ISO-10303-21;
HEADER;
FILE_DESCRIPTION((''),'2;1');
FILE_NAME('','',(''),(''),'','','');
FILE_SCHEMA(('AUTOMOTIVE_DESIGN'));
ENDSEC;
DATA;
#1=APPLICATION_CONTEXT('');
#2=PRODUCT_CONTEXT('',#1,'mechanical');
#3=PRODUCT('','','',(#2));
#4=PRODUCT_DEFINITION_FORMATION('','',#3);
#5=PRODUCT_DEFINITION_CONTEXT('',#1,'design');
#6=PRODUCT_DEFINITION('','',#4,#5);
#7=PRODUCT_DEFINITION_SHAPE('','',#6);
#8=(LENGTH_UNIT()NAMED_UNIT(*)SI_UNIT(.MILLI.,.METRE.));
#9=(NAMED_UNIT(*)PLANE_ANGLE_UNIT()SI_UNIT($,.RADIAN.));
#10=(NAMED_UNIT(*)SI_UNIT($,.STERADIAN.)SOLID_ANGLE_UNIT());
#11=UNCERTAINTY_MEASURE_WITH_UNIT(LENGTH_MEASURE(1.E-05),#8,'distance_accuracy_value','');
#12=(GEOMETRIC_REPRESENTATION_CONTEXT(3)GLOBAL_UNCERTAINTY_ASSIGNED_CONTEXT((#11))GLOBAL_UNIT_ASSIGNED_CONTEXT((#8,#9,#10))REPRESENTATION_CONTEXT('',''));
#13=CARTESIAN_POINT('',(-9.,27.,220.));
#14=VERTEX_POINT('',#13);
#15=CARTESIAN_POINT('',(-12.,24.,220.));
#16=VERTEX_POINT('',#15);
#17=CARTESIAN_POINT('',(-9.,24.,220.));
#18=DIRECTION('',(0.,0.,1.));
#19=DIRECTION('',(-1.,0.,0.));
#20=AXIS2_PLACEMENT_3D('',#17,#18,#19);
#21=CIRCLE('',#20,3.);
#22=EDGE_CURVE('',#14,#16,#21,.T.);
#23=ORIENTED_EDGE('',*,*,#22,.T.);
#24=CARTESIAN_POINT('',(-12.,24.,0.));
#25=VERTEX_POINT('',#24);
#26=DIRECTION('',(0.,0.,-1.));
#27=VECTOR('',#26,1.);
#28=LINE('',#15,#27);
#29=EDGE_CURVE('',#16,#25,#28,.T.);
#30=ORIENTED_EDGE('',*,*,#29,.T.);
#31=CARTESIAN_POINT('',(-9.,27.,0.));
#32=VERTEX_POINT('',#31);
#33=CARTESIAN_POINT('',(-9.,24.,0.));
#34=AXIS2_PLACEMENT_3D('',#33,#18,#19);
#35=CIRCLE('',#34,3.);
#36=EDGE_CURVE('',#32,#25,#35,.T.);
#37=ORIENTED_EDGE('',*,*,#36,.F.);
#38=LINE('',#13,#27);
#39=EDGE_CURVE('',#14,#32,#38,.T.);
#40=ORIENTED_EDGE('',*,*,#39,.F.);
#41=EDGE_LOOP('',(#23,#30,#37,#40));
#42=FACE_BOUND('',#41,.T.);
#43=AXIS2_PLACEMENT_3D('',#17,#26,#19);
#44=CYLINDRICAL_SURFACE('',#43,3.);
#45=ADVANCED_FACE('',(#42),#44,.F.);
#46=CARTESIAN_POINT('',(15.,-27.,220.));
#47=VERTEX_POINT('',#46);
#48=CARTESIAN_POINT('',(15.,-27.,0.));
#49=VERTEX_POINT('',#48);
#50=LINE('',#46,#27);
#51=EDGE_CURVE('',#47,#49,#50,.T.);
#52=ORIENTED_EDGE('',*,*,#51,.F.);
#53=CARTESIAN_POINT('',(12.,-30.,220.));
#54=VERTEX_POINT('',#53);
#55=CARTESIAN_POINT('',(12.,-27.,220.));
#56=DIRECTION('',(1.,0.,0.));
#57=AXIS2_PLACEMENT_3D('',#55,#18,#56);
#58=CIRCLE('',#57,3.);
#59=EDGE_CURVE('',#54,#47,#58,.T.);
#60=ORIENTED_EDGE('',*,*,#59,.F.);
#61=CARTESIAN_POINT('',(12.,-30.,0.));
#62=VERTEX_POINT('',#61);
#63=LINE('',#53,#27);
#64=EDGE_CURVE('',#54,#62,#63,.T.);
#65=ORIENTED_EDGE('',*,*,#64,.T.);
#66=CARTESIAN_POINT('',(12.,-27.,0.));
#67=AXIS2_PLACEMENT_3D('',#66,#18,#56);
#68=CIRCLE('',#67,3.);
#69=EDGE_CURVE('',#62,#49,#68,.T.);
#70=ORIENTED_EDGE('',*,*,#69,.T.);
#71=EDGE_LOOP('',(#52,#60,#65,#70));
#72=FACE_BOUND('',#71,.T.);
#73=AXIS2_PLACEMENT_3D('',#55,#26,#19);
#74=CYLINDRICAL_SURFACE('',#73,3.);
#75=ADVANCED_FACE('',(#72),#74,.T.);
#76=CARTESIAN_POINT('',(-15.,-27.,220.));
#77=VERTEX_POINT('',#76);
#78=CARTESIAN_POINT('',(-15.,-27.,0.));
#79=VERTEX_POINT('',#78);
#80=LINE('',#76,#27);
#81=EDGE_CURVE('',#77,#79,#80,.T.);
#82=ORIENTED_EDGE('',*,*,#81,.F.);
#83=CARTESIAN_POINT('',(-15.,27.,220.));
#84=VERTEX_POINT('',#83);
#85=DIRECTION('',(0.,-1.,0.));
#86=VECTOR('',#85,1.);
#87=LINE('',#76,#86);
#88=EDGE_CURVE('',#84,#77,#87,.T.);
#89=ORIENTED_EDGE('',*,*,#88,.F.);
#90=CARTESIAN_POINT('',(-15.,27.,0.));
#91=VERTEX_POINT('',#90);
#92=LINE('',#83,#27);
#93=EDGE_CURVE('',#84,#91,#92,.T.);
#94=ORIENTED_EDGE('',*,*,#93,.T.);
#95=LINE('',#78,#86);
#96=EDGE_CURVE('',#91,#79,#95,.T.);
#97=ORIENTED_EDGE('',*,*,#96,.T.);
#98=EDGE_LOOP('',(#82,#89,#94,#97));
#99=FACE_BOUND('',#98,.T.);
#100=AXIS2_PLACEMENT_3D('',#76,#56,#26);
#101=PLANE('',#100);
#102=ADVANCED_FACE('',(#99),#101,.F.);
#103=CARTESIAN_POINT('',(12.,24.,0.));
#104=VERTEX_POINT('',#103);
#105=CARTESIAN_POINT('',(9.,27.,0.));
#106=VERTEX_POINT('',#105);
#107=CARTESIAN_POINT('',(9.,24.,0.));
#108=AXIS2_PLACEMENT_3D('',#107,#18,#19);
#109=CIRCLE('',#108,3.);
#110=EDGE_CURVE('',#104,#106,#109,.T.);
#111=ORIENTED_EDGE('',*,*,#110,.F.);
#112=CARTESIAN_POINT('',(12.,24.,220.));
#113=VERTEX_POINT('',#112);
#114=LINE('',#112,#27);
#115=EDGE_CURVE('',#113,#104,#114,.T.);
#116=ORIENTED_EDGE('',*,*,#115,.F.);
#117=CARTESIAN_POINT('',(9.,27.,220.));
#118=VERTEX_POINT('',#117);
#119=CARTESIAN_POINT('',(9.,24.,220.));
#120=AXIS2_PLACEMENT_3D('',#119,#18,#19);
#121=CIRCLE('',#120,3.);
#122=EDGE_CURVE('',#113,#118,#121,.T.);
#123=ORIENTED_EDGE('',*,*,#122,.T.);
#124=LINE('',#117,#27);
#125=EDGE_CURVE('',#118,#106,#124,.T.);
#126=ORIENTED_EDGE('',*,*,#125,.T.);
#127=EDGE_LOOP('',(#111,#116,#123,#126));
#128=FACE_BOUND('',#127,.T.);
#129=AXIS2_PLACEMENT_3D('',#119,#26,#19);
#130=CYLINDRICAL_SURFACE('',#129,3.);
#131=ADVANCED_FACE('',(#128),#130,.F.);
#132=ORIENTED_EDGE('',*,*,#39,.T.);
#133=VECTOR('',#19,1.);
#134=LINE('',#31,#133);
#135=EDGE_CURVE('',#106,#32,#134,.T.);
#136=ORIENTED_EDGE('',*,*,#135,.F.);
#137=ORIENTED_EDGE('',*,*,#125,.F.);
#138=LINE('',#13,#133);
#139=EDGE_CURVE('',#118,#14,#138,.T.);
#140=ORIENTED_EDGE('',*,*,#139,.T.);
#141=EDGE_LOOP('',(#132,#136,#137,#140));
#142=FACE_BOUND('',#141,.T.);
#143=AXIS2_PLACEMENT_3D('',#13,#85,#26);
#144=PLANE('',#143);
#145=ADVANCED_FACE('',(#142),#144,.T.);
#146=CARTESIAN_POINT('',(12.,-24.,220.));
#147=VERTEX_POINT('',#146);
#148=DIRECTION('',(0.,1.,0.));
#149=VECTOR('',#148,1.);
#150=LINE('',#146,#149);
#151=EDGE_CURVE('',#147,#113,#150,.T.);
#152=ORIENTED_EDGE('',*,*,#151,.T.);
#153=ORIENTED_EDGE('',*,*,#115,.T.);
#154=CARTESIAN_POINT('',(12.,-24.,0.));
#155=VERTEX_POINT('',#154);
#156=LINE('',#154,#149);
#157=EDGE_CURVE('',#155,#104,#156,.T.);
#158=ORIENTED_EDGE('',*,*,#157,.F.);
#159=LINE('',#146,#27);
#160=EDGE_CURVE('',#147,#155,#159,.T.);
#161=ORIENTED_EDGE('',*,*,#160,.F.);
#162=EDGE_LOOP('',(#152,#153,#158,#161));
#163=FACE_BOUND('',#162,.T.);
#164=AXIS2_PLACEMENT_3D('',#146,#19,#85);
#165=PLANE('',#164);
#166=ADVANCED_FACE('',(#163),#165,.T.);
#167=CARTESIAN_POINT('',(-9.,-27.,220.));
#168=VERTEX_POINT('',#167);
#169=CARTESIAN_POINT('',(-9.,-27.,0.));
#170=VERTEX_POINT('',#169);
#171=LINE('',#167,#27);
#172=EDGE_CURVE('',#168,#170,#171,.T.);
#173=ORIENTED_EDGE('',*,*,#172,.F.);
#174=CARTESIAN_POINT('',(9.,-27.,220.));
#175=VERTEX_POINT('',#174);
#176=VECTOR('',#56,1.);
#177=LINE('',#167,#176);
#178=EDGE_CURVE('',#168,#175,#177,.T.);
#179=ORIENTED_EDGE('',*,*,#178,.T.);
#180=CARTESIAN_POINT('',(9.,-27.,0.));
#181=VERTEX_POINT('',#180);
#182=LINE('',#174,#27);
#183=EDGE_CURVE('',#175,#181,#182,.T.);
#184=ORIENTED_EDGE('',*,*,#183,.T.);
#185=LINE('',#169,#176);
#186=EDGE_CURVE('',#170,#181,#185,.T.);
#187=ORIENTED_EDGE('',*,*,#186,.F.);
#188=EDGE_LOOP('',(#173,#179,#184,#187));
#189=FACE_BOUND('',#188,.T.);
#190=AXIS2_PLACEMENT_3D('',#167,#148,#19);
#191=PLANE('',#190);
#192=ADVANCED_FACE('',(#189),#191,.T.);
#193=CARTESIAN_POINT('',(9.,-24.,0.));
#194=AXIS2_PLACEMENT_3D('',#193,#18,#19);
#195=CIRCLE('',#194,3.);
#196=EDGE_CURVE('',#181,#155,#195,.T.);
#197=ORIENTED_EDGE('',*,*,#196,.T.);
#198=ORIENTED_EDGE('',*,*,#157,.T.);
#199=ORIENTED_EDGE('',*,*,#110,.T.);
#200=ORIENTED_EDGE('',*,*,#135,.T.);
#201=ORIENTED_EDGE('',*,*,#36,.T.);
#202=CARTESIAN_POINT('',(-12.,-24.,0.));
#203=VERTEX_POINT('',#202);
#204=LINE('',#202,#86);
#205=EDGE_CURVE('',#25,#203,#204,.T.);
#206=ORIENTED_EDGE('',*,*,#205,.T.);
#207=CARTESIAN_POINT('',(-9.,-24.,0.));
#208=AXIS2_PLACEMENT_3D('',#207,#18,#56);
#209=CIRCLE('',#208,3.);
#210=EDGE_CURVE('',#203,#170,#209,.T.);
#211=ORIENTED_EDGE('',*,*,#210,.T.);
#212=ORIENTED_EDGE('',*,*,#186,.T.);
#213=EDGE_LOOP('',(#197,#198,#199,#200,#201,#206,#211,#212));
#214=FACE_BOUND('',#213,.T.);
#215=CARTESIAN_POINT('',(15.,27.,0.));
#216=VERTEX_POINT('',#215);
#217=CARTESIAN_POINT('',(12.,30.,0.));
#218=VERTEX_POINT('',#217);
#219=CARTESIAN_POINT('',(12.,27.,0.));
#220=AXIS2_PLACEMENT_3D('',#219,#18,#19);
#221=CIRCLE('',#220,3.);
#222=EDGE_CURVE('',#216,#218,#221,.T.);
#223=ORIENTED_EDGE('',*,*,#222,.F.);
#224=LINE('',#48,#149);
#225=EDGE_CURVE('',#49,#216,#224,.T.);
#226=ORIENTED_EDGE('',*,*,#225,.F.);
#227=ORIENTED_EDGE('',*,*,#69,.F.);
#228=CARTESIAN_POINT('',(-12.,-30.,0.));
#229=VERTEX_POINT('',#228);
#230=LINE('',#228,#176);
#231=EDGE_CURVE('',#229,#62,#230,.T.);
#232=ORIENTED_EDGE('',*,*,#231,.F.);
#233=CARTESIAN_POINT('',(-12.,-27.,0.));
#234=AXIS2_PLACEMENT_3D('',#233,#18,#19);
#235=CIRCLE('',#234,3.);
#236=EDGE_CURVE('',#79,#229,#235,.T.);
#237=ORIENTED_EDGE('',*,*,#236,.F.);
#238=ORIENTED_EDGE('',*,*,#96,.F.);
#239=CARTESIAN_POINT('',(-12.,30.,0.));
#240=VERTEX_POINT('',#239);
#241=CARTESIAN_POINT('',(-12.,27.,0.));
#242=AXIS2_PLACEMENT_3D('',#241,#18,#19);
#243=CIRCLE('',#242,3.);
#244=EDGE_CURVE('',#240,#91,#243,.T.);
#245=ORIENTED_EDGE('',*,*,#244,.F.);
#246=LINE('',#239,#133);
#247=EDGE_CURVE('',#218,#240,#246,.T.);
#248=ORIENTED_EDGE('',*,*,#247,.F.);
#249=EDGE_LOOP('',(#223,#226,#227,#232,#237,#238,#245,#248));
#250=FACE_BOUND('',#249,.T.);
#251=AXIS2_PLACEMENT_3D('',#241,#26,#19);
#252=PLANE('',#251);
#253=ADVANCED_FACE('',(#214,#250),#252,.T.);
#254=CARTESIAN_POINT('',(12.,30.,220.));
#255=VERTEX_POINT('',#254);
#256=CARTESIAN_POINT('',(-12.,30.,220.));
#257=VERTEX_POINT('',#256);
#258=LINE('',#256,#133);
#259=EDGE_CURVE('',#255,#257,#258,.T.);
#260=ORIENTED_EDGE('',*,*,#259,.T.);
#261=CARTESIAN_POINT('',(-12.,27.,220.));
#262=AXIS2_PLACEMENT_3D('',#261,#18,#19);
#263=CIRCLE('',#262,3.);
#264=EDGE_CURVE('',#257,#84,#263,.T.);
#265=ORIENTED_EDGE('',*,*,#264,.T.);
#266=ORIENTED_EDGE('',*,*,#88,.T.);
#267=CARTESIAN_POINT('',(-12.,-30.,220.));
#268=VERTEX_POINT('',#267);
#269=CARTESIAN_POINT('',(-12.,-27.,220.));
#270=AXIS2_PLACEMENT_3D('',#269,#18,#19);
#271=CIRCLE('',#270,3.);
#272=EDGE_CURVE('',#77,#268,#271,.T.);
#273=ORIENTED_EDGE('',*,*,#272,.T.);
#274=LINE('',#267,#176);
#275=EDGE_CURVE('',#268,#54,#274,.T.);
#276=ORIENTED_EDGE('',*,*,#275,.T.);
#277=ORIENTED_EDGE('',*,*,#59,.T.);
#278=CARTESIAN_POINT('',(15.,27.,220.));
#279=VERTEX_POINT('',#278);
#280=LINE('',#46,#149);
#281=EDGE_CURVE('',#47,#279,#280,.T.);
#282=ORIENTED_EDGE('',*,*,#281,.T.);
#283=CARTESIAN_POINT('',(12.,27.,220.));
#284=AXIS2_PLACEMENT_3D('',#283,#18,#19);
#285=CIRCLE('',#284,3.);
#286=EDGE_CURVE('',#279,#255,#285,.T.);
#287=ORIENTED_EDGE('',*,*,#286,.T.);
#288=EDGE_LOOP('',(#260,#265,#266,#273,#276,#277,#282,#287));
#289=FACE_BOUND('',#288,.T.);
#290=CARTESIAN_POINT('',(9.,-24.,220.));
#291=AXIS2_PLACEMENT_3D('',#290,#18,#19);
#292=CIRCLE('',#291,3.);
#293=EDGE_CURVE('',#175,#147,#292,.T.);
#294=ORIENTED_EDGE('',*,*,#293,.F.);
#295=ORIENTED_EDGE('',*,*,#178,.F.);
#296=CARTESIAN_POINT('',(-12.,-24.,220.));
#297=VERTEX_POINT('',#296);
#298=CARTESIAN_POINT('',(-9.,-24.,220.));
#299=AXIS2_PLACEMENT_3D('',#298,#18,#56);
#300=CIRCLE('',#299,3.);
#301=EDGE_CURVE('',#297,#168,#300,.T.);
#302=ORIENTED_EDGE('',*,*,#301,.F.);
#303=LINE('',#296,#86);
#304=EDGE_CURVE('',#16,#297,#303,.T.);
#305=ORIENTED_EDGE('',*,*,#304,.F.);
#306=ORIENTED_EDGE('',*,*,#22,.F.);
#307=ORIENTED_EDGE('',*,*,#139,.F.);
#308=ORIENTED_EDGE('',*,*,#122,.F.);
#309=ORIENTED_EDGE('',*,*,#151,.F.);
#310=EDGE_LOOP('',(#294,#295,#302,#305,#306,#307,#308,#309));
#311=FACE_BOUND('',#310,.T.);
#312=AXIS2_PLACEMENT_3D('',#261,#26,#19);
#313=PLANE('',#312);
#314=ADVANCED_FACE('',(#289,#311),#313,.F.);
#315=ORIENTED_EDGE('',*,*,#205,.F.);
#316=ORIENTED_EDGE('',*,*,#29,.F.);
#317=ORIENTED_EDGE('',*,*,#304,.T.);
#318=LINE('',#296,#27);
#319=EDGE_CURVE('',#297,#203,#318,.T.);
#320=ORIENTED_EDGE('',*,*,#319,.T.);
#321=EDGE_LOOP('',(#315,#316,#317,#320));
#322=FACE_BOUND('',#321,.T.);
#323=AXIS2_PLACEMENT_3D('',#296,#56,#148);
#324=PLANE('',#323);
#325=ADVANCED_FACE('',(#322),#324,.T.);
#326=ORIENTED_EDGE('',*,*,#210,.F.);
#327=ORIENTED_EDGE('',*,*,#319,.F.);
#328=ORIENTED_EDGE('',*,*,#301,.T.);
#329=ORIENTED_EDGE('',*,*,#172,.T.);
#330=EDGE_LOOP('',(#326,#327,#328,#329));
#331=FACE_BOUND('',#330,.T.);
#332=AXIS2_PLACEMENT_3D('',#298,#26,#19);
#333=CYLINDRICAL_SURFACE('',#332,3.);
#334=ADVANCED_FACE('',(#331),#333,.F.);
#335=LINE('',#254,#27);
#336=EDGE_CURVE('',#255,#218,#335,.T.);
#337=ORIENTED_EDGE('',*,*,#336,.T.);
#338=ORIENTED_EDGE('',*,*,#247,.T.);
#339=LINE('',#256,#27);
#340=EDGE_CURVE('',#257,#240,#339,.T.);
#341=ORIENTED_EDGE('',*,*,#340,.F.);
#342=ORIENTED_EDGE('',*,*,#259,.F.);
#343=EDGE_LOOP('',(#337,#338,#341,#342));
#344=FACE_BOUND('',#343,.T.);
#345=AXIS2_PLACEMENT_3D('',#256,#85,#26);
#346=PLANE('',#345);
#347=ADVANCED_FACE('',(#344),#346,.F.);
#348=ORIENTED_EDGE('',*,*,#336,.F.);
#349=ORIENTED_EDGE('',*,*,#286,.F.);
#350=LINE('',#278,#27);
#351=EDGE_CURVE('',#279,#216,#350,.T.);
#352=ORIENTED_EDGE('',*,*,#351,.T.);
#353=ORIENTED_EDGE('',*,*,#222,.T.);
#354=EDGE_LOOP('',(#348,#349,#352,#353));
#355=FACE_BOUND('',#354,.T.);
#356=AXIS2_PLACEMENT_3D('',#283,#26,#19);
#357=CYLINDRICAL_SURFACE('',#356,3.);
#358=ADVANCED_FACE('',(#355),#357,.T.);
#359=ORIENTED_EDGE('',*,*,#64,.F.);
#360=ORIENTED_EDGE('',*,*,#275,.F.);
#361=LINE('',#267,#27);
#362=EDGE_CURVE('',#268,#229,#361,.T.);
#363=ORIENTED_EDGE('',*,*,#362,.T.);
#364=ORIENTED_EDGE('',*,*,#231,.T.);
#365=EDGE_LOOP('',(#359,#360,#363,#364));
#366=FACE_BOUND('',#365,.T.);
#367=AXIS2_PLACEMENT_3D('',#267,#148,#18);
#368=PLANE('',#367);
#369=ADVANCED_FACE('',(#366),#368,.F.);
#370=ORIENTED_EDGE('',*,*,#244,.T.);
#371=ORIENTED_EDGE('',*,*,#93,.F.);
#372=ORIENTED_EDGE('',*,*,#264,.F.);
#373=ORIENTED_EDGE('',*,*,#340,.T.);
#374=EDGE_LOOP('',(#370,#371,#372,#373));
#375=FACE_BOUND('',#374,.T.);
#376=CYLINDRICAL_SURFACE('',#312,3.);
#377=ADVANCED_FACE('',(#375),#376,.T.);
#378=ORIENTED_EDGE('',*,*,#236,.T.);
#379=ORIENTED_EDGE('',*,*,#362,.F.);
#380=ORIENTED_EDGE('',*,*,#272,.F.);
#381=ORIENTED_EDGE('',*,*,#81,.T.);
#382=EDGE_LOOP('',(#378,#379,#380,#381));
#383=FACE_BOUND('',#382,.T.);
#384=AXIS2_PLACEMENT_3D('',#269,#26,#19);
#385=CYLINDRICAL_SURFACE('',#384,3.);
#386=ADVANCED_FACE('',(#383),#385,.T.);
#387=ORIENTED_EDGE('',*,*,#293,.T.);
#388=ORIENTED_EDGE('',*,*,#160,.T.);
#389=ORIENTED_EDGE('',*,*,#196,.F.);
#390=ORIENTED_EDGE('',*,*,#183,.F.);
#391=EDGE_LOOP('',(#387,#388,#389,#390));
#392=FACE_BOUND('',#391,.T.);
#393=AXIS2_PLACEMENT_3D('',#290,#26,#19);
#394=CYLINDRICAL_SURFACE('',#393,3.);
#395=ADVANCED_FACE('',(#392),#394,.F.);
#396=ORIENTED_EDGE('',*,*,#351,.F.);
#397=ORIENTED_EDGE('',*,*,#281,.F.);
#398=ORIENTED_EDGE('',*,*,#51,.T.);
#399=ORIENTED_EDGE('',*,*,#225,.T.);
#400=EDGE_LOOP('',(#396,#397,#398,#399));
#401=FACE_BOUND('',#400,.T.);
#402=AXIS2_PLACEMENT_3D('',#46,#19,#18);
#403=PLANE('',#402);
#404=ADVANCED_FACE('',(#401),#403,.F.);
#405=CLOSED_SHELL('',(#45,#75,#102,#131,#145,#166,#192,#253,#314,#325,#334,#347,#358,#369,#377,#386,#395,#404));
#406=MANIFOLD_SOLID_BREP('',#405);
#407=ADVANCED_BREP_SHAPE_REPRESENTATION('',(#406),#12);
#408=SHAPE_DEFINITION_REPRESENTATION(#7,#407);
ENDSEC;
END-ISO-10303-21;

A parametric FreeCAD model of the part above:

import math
import FreeCAD as App
import Part
import Sketcher

V = App.Vector

doc = App.newDocument("Part")
body = doc.addObject("PartDesign::Body", "Body")

# Sketch on XY plane
sketch1 = body.newObject("Sketcher::SketchObject", "Sketch")
sketch1.AttachmentSupport = (doc.getObject("XY_Plane"), [""])
sketch1.MapMode = "FlatFace"
sketch1.addGeometry(Part.LineSegment(V(-12, -30, 0), V(12, -30, 0)), False)
sketch1.addGeometry(Part.ArcOfCircle(Part.Circle(V(12, -27, 0), V(0, 0, 1), 3), math.radians(-90), math.radians(0)), False)
sketch1.addGeometry(Part.LineSegment(V(15, -27, 0), V(15, 27, 0)), False)
sketch1.addGeometry(Part.ArcOfCircle(Part.Circle(V(12, 27, 0), V(0, 0, 1), 3), math.radians(0), math.radians(90)), False)
sketch1.addGeometry(Part.LineSegment(V(12, 30, 0), V(-12, 30, 0)), False)
sketch1.addGeometry(Part.ArcOfCircle(Part.Circle(V(-12, 27, 0), V(0, 0, 1), 3), math.radians(90), math.radians(180)), False)
sketch1.addGeometry(Part.LineSegment(V(-15, 27, 0), V(-15, -27, 0)), False)
sketch1.addGeometry(Part.ArcOfCircle(Part.Circle(V(-12, -27, 0), V(0, 0, 1), 3), math.radians(180), math.radians(270)), False)
sketch1.addGeometry(Part.ArcOfCircle(Part.Circle(V(-9, 24, 0), V(0, 0, 1), 3), math.radians(90), math.radians(180)), False)
sketch1.addGeometry(Part.LineSegment(V(-9, 27, 0), V(9, 27, 0)), False)
sketch1.addGeometry(Part.ArcOfCircle(Part.Circle(V(9, 24, 0), V(0, 0, 1), 3), math.radians(0), math.radians(90)), False)
sketch1.addGeometry(Part.LineSegment(V(12, 24, 0), V(12, -24, 0)), False)
sketch1.addGeometry(Part.ArcOfCircle(Part.Circle(V(9, -24, 0), V(0, 0, 1), 3), math.radians(-90), math.radians(0)), False)
sketch1.addGeometry(Part.LineSegment(V(9, -27, 0), V(-9, -27, 0)), False)
sketch1.addGeometry(Part.ArcOfCircle(Part.Circle(V(-9, -24, 0), V(0, 0, 1), 3), math.radians(180), math.radians(270)), False)
sketch1.addGeometry(Part.LineSegment(V(-12, -24, 0), V(-12, 24, 0)), False)
sketch1.addConstraint(Sketcher.Constraint("Tangent", 0, 2, 1, 1))
sketch1.addConstraint(Sketcher.Constraint("Tangent", 1, 2, 2, 1))
sketch1.addConstraint(Sketcher.Constraint("Tangent", 2, 2, 3, 1))
sketch1.addConstraint(Sketcher.Constraint("Tangent", 3, 2, 4, 1))
sketch1.addConstraint(Sketcher.Constraint("Tangent", 4, 2, 5, 1))
sketch1.addConstraint(Sketcher.Constraint("Tangent", 5, 2, 6, 1))
sketch1.addConstraint(Sketcher.Constraint("Tangent", 6, 2, 7, 1))
sketch1.addConstraint(Sketcher.Constraint("Tangent", 7, 2, 0, 1))
sketch1.addConstraint(Sketcher.Constraint("Tangent", 8, 1, 9, 1))
sketch1.addConstraint(Sketcher.Constraint("Tangent", 9, 2, 10, 2))
sketch1.addConstraint(Sketcher.Constraint("Tangent", 10, 1, 11, 1))
sketch1.addConstraint(Sketcher.Constraint("Tangent", 11, 2, 12, 2))
sketch1.addConstraint(Sketcher.Constraint("Tangent", 12, 1, 13, 1))
sketch1.addConstraint(Sketcher.Constraint("Tangent", 13, 2, 14, 2))
sketch1.addConstraint(Sketcher.Constraint("Tangent", 14, 1, 15, 1))
sketch1.addConstraint(Sketcher.Constraint("Tangent", 15, 2, 8, 2))
sketch1.addConstraint(Sketcher.Constraint("Horizontal", 0))
sketch1.addConstraint(Sketcher.Constraint("Vertical", 2))
sketch1.addConstraint(Sketcher.Constraint("Horizontal", 4))
sketch1.addConstraint(Sketcher.Constraint("Vertical", 6))
sketch1.addConstraint(Sketcher.Constraint("Horizontal", 9))
sketch1.addConstraint(Sketcher.Constraint("Vertical", 11))
sketch1.addConstraint(Sketcher.Constraint("Horizontal", 13))
sketch1.addConstraint(Sketcher.Constraint("Vertical", 15))
sketch1.addConstraint(Sketcher.Constraint("Equal", 1, 3))
sketch1.addConstraint(Sketcher.Constraint("Equal", 3, 5))
sketch1.addConstraint(Sketcher.Constraint("Equal", 5, 7))
sketch1.addConstraint(Sketcher.Constraint("Equal", 7, 8))
sketch1.addConstraint(Sketcher.Constraint("Equal", 8, 10))
sketch1.addConstraint(Sketcher.Constraint("Equal", 10, 12))
sketch1.addConstraint(Sketcher.Constraint("Equal", 12, 14))
sketch1.addConstraint(Sketcher.Constraint("Symmetric", 1, 3, 5, 3, -1, 1))
sketch1.addConstraint(Sketcher.Constraint("Symmetric", 8, 3, 12, 3, -1, 1))
sketch1.addConstraint(Sketcher.Constraint("Horizontal", 5, 2, 8, 1))
sketch1.addConstraint(Sketcher.Constraint("Vertical", 3, 2, 10, 1))
sketch1.addConstraint(Sketcher.Constraint("Radius", 1, 3.0))
sketch1.addConstraint(Sketcher.Constraint("DistanceX", 0, 1, 0, 2, 24.0))
sketch1.addConstraint(Sketcher.Constraint("DistanceY", 2, 1, 2, 2, 54.0))
pad1 = body.newObject("PartDesign::Pad", "Pad")
pad1.Profile = sketch1
pad1.Length = 220

doc.recompute()
